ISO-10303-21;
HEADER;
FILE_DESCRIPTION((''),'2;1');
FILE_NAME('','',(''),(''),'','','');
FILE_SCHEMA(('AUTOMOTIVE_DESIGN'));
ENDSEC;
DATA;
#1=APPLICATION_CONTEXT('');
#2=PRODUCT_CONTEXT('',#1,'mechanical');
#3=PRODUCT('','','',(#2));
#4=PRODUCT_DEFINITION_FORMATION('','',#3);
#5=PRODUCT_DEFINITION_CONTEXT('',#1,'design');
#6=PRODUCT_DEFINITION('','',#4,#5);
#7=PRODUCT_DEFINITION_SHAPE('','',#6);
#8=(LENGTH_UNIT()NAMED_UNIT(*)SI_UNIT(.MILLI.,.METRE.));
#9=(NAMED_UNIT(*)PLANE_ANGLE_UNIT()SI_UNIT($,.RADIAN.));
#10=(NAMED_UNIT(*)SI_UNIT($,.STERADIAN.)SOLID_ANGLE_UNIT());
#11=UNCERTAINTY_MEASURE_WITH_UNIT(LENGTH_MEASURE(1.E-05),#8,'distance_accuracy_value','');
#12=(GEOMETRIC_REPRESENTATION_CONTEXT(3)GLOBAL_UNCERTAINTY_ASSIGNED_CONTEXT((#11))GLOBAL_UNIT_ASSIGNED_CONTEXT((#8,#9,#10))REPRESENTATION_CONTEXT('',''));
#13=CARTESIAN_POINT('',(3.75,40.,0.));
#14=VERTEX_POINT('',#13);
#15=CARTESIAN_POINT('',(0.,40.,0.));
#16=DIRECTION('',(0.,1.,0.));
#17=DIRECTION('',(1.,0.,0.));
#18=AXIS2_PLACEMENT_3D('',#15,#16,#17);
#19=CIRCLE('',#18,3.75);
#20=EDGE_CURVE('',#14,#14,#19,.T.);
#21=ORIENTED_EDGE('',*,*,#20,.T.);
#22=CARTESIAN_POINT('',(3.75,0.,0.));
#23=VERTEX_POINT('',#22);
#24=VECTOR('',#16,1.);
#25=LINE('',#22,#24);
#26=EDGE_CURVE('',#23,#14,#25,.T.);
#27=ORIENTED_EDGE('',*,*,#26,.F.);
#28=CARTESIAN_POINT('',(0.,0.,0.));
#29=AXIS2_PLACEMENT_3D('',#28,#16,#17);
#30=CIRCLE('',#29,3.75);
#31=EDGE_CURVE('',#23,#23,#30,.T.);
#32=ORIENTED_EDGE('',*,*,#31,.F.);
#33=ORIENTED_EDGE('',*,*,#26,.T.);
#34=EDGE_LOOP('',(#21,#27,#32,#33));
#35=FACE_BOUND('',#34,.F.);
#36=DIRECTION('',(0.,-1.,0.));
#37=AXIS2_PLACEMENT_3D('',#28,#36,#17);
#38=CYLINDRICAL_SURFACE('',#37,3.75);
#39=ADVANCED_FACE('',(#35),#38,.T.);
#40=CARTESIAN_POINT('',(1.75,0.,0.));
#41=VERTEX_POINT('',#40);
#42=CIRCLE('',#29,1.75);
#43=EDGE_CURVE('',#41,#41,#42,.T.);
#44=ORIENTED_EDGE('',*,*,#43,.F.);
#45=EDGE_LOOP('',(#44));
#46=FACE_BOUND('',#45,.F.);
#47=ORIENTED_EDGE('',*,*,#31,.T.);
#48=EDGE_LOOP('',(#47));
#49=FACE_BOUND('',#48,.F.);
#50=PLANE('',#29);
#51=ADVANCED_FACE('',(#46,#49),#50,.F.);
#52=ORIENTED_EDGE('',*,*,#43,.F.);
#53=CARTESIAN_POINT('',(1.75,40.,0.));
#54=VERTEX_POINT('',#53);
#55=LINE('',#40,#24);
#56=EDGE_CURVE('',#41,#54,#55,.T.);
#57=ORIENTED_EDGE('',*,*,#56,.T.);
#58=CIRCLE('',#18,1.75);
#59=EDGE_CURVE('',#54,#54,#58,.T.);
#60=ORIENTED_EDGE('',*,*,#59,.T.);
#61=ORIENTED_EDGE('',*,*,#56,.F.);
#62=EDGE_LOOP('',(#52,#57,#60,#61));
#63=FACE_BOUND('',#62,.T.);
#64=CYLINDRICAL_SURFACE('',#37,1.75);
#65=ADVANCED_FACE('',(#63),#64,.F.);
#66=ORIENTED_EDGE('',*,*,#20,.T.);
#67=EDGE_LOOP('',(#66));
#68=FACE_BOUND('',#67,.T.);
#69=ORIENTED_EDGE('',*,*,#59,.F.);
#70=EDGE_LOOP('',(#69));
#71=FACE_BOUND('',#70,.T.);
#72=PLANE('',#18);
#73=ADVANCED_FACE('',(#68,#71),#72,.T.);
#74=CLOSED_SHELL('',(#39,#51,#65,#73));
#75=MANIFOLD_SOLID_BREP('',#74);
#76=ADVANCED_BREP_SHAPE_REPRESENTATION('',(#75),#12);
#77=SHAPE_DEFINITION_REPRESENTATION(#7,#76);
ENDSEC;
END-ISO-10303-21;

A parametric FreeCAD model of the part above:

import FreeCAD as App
import Part
import Sketcher
from FreeCAD import Vector
Q = App.Units.Quantity

doc = App.newDocument("Part")
params = doc.addObject("Spreadsheet::Sheet", "Params")
for row, (alias, value) in enumerate([
    ("sketch1_diameter", "7.5 mm"),
    ("sketch1_diameter2", "3.5 mm"),
    ("pad1_length", "40 mm"),
], start=1):
    params.set(f"A{row}", alias)
    params.set(f"B{row}", "=" + value)
    params.setAlias(f"B{row}", alias)

body = doc.addObject("PartDesign::Body", "Body")

# Sketch on XZ plane
sketch1 = body.newObject("Sketcher::SketchObject", "Sketch")
sketch1.AttachmentSupport = (doc.getObject("XZ_Plane"), [""])
sketch1.MapMode = "FlatFace"
sketch1.addGeometry(Part.Circle(Vector(0, 0, 0), Vector(0, 0, 1), 3.75), False)
sketch1.addGeometry(Part.Circle(Vector(0, 0, 0), Vector(0, 0, 1), 1.75), False)
sketch1.addConstraint(Sketcher.Constraint("Coincident", 0, 3, -1, 1))
sketch1.addConstraint(Sketcher.Constraint("Coincident", 1, 3, -1, 1))
sketch1.addConstraint(Sketcher.Constraint("Diameter", 0, Q("7.5 mm")))
sketch1.addConstraint(Sketcher.Constraint("Diameter", 1, Q("3.5 mm")))
sketch1.setExpression("Constraints[2]", "Params.sketch1_diameter")
sketch1.setExpression("Constraints[3]", "Params.sketch1_diameter2")
pad1 = body.newObject("PartDesign::Pad", "Pad")
pad1.Profile = sketch1
pad1.setExpression("Length", "Params.pad1_length")
pad1.Reversed = True

doc.recompute()
